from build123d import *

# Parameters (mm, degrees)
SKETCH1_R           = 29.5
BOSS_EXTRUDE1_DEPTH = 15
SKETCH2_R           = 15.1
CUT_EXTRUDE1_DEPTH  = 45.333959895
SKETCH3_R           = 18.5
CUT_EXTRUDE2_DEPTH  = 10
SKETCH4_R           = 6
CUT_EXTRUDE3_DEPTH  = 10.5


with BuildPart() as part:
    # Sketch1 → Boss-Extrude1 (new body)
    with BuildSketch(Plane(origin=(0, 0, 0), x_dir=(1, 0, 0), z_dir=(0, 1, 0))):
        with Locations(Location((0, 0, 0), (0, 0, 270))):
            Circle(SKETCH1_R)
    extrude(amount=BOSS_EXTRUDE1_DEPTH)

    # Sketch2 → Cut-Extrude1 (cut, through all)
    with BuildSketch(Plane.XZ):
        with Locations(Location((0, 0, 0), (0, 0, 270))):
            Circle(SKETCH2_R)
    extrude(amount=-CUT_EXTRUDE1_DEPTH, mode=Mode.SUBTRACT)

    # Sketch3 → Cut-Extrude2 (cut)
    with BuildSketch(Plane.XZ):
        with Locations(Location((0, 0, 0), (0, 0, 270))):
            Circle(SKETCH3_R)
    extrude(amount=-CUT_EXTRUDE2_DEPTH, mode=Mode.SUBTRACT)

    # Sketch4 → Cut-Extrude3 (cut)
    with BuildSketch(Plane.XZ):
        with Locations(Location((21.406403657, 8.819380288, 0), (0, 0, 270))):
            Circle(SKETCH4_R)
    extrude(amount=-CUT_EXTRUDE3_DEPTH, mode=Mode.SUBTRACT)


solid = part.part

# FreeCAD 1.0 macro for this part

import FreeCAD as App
import Part
import Sketcher

V = App.Vector

doc = App.newDocument("Part")
body = doc.addObject("PartDesign::Body", "Body")

# Sketch on XZ plane
sketch1 = body.newObject("Sketcher::SketchObject", "Sketch")
sketch1.AttachmentSupport = (doc.getObject("XZ_Plane"), [""])
sketch1.MapMode = "FlatFace"
sketch1.addGeometry(Part.Circle(V(0, 0, 0), V(0, 0, 1), 30), False)
sketch1.addConstraint(Sketcher.Constraint("Coincident", 0, 3, -1, 1))
sketch1.addConstraint(Sketcher.Constraint("Diameter", 0, 59.0))
pad1 = body.newObject("PartDesign::Pad", "Pad")
pad1.Profile = sketch1
pad1.Length = 15
pad1.Reversed = True

# Sketch on XZ plane
sketch2 = body.newObject("Sketcher::SketchObject", "Sketch001")
sketch2.AttachmentSupport = (doc.getObject("XZ_Plane"), [""])
sketch2.MapMode = "FlatFace"
sketch2.addGeometry(Part.Circle(V(0, 0, 0), V(0, 0, 1), 15), False)
sketch2.addConstraint(Sketcher.Constraint("Coincident", 0, 3, -1, 1))
sketch2.addConstraint(Sketcher.Constraint("Diameter", 0, 30.2))
pocket1 = body.newObject("PartDesign::Pocket", "Pocket")
pocket1.Profile = sketch2
pocket1.Type = "ThroughAll"

# Sketch on XZ plane
sketch3 = body.newObject("Sketcher::SketchObject", "Sketch002")
sketch3.AttachmentSupport = (doc.getObject("XZ_Plane"), [""])
sketch3.MapMode = "FlatFace"
sketch3.addGeometry(Part.Circle(V(0, 0, 0), V(0, 0, 1), 18), False)
sketch3.addConstraint(Sketcher.Constraint("Coincident", 0, 3, -1, 1))
sketch3.addConstraint(Sketcher.Constraint("Diameter", 0, 37.0))
pocket2 = body.newObject("PartDesign::Pocket", "Pocket001")
pocket2.Profile = sketch3
pocket2.Length = 10

# Sketch on XZ plane
sketch4 = body.newObject("Sketcher::SketchObject", "Sketch003")
sketch4.AttachmentSupport = (doc.getObject("XZ_Plane"), [""])
sketch4.MapMode = "FlatFace"
sketch4.addGeometry(Part.Circle(V(21, 9, 0), V(0, 0, 1), 6), False)
sketch4.addConstraint(Sketcher.Constraint("Diameter", 0, 12.0))
sketch4.addConstraint(Sketcher.Constraint("DistanceY", -1, 1, 0, 3, 8.81938))
sketch4.addConstraint(Sketcher.Constraint("DistanceX", -1, 1, 0, 3, 21.406404))
pocket3 = body.newObject("PartDesign::Pocket", "Pocket002")
pocket3.Profile = sketch4
pocket3.Length = 10.5

doc.recompute()
